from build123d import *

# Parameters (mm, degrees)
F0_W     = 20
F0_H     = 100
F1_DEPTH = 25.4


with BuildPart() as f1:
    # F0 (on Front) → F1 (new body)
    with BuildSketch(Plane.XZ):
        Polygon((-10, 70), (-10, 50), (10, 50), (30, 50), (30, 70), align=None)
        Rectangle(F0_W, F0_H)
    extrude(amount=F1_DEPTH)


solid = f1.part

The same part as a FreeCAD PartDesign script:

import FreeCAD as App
import Part
import Sketcher

doc = App.newDocument("Part")
body = doc.addObject("PartDesign::Body", "Body")

# Sketch on XZ plane
sketch1 = body.newObject("Sketcher::SketchObject", "Sketch")
sketch1.AttachmentSupport = (doc.getObject("XZ_Plane"), [""])
sketch1.MapMode = "FlatFace"
sketch1.addGeometry([
    Part.LineSegment(App.Vector(-10, 70, 0), App.Vector(-10, -50, 0)),  # 0
    Part.LineSegment(App.Vector(-10, -50, 0), App.Vector(10, -50, 0)),  # 1
    Part.LineSegment(App.Vector(10, -50, 0), App.Vector(10, 50, 0)),  # 2
    Part.LineSegment(App.Vector(10, 50, 0), App.Vector(30, 50, 0)),  # 3
    Part.LineSegment(App.Vector(30, 50, 0), App.Vector(30, 70, 0)),  # 4
    Part.LineSegment(App.Vector(30, 70, 0), App.Vector(-10, 70, 0)),  # 5
], False)
sketch1.addConstraint([
    Sketcher.Constraint("Coincident", 0, 2, 1, 1),
    Sketcher.Constraint("Coincident", 1, 2, 2, 1),
    Sketcher.Constraint("Coincident", 2, 2, 3, 1),
    Sketcher.Constraint("Coincident", 3, 2, 4, 1),
    Sketcher.Constraint("Coincident", 4, 2, 5, 1),
    Sketcher.Constraint("Coincident", 5, 2, 0, 1),
    Sketcher.Constraint("Vertical", 0),
    Sketcher.Constraint("Horizontal", 1),
    Sketcher.Constraint("Vertical", 2),
    Sketcher.Constraint("Horizontal", 3),
    Sketcher.Constraint("Vertical", 4),
    Sketcher.Constraint("Horizontal", 5),
    Sketcher.Constraint("Symmetric", 0, 2, 2, 2, -1, 1),
    Sketcher.Constraint("Equal", 1, 3),
    Sketcher.Constraint("Equal", 3, 4),
    Sketcher.Constraint("DistanceX", 1, 1, 1, 2, 20.0),
    Sketcher.Constraint("DistanceY", 0, 2, 0, 1, 120.0),
])
pad1 = body.newObject("PartDesign::Pad", "Pad")
pad1.Profile = sketch1
pad1.Length = 25.4

doc.recompute()
